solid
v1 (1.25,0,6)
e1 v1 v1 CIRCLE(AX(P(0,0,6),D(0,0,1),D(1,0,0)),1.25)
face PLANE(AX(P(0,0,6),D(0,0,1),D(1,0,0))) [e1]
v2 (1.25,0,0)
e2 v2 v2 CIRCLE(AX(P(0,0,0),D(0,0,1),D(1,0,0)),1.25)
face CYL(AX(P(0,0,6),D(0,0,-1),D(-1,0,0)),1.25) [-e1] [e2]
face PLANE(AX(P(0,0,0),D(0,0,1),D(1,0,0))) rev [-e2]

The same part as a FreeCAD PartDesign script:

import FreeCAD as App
import Part
import Sketcher
from FreeCAD import Vector
Q = App.Units.Quantity

doc = App.newDocument("Part")
body = doc.addObject("PartDesign::Body", "Body")

# Sketch on XY plane
sketch1 = body.newObject("Sketcher::SketchObject", "Sketch")
sketch1.AttachmentSupport = (doc.getObject("XY_Plane"), [""])
sketch1.MapMode = "FlatFace"
sketch1.addGeometry(Part.Circle(Vector(0, 0, 0), Vector(0, 0, 1), 1.25), False)
sketch1.addConstraint([
    Sketcher.Constraint("Coincident", 0, 3, -1, 1),
    Sketcher.Constraint("Diameter", 0, Q("2.5 mm")),
])
pad1 = body.newObject("PartDesign::Pad", "Pad")
pad1.Profile = sketch1
pad1.Length = 6

doc.recompute()
